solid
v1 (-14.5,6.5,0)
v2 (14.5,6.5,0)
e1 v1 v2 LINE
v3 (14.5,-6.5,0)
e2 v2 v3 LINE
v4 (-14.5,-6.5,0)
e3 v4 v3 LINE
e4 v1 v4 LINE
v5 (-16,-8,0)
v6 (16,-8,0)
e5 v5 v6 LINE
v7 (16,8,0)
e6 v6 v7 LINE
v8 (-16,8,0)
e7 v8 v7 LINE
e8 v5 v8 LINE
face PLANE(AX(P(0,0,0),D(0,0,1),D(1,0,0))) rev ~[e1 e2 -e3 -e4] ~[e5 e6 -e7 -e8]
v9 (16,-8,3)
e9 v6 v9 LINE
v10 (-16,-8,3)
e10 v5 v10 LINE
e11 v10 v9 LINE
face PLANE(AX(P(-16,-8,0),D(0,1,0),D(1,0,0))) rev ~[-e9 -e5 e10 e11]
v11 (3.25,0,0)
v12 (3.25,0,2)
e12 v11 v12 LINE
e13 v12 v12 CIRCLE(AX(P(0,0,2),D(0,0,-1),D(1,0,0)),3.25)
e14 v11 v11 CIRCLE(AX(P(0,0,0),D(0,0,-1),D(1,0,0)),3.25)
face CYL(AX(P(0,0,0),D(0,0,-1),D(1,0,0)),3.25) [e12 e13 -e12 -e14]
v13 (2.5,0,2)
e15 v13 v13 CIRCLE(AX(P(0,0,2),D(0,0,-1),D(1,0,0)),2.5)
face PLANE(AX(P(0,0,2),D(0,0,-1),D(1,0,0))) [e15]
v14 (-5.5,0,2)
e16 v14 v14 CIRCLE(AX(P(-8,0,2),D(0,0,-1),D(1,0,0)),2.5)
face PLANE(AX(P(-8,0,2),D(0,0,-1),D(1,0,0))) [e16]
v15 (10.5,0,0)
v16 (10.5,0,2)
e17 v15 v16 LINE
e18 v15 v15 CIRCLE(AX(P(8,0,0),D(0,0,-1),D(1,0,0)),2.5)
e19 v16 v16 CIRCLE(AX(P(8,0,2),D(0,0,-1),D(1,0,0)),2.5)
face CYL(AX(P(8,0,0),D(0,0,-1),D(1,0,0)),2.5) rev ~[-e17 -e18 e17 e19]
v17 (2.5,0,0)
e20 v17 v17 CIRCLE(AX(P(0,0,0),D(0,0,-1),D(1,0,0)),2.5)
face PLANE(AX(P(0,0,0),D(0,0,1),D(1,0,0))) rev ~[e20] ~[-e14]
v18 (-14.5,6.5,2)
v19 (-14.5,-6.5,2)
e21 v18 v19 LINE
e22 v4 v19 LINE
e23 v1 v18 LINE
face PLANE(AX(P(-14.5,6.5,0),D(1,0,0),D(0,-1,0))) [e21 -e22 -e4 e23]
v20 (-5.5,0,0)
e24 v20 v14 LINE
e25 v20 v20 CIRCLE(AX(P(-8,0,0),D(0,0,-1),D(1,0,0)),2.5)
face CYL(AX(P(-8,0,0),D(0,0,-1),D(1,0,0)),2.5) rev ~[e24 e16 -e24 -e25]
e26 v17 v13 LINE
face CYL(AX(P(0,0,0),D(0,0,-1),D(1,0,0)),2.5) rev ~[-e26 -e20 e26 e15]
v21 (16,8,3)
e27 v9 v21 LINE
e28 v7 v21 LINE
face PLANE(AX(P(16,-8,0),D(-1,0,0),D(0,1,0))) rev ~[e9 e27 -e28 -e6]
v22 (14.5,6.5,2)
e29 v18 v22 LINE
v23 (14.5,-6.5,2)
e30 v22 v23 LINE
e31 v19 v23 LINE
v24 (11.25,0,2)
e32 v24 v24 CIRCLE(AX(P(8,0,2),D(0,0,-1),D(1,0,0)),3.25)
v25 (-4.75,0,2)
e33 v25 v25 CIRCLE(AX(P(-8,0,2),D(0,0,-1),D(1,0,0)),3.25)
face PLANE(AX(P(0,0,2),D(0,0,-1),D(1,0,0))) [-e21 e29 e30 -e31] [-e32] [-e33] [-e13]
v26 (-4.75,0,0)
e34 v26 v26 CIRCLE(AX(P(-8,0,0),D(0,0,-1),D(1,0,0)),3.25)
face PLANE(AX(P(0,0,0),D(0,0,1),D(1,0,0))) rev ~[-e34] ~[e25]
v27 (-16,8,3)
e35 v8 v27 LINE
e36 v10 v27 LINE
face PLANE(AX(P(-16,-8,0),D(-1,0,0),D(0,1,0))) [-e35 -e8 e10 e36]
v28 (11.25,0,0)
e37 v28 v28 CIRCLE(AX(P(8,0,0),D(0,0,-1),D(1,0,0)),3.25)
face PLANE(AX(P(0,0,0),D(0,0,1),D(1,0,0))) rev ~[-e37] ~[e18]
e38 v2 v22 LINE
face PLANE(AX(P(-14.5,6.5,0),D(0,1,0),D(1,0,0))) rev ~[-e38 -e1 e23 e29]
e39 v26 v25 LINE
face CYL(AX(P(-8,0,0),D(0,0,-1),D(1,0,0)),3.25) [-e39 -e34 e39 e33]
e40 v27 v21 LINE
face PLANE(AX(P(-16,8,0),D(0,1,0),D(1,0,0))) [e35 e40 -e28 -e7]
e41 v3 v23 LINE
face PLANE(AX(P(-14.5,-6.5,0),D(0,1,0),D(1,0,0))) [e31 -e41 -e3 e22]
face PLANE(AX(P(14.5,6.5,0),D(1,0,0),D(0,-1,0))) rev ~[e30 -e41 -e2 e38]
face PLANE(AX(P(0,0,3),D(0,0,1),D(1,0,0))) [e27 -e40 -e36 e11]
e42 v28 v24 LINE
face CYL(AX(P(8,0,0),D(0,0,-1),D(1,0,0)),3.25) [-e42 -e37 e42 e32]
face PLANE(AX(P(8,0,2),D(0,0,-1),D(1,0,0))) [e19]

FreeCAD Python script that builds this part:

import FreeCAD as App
import Part
import Sketcher

V = App.Vector
Q = App.Units.Quantity


def add_polygon(sketch, points):
    """Adds a closed chain of lines whose ends are joined by coincident constraints."""
    first, n = sketch.GeometryCount, len(points)
    for a, b in zip(points, points[1:] + points[:1]):
        sketch.addGeometry(Part.LineSegment(App.Vector(*a, 0), App.Vector(*b, 0)), False)
    for i in range(n):
        sketch.addConstraint(Sketcher.Constraint("Coincident", first + i, 2, first + (i + 1) % n, 1))

doc = App.newDocument("Part")
body = doc.addObject("PartDesign::Body", "Body")

# Sketch on XY plane
sketch1 = body.newObject("Sketcher::SketchObject", "Sketch")
sketch1.AttachmentSupport = (doc.getObject("XY_Plane"), [""])
sketch1.MapMode = "FlatFace"
add_polygon(sketch1, [(-16, 8), (-16, -8), (16, -8), (16, 8)])  # lines 0-3
sketch1.addConstraint([
    Sketcher.Constraint("Vertical", 0),
    Sketcher.Constraint("Horizontal", 1),
    Sketcher.Constraint("Vertical", 2),
    Sketcher.Constraint("Horizontal", 3),
    Sketcher.Constraint("Symmetric", 0, 2, 2, 2, -1, 1),
    Sketcher.Constraint("DistanceX", 1, 1, 1, 2, Q("32 mm")),
    Sketcher.Constraint("DistanceY", 0, 2, 0, 1, Q("16 mm")),
])
pad1 = body.newObject("PartDesign::Pad", "Pad")
pad1.Profile = sketch1
pad1.Length = 3

# Sketch on XY plane
sketch2 = body.newObject("Sketcher::SketchObject", "Sketch001")
sketch2.AttachmentSupport = (doc.getObject("XY_Plane"), [""])
sketch2.MapMode = "FlatFace"
add_polygon(sketch2, [(-14.5, -6.5), (-14.5, 6.5), (14.5, 6.5), (14.5, -6.5)])  # lines 0-3
sketch2.addGeometry(Part.Circle(V(-8, 0, 0), V(0, 0, 1), 3.25), False)  # 4
sketch2.addGeometry(Part.Circle(V(0, 0, 0), V(0, 0, 1), 3.25), False)  # 5
sketch2.addGeometry(Part.Circle(V(8, 0, 0), V(0, 0, 1), 3.25), False)  # 6
sketch2.addGeometry(Part.Circle(V(-8, 0, 0), V(0, 0, 1), 2.5), False)  # 7
sketch2.addGeometry(Part.Circle(V(0, 0, 0), V(0, 0, 1), 2.5), False)  # 8
sketch2.addGeometry(Part.Circle(V(8, 0, 0), V(0, 0, 1), 2.5), False)  # 9
sketch2.addConstraint([
    Sketcher.Constraint("Vertical", 0),
    Sketcher.Constraint("Horizontal", 1),
    Sketcher.Constraint("Vertical", 2),
    Sketcher.Constraint("Horizontal", 3),
    Sketcher.Constraint("Coincident", 5, 3, -1, 1),
    Sketcher.Constraint("Coincident", 8, 3, -1, 1),
    Sketcher.Constraint("Coincident", 7, 3, 4, 3),
    Sketcher.Constraint("Coincident", 9, 3, 6, 3),
    Sketcher.Constraint("Equal", 4, 5),
    Sketcher.Constraint("Equal", 5, 6),
    Sketcher.Constraint("Equal", 7, 8),
    Sketcher.Constraint("Equal", 8, 9),
    Sketcher.Constraint("Symmetric", 4, 3, 6, 3, -1, 1),
    Sketcher.Constraint("Symmetric", 0, 2, 2, 2, -1, 1),
    Sketcher.Constraint("PointOnObject", 4, 3, -1),
    Sketcher.Constraint("Diameter", 7, Q("5 mm")),
    Sketcher.Constraint("Diameter", 4, Q("6.5 mm")),
    Sketcher.Constraint("DistanceX", 1, 1, 1, 2, Q("29 mm")),
    Sketcher.Constraint("DistanceY", 0, 1, 0, 2, Q("13 mm")),
    Sketcher.Constraint("DistanceX", 4, 3, -1, 1, Q("8 mm")),
])
pocket1 = body.newObject("PartDesign::Pocket", "Pocket")
pocket1.Profile = sketch2
pocket1.Length = 2
pocket1.Reversed = True

doc.recompute()
